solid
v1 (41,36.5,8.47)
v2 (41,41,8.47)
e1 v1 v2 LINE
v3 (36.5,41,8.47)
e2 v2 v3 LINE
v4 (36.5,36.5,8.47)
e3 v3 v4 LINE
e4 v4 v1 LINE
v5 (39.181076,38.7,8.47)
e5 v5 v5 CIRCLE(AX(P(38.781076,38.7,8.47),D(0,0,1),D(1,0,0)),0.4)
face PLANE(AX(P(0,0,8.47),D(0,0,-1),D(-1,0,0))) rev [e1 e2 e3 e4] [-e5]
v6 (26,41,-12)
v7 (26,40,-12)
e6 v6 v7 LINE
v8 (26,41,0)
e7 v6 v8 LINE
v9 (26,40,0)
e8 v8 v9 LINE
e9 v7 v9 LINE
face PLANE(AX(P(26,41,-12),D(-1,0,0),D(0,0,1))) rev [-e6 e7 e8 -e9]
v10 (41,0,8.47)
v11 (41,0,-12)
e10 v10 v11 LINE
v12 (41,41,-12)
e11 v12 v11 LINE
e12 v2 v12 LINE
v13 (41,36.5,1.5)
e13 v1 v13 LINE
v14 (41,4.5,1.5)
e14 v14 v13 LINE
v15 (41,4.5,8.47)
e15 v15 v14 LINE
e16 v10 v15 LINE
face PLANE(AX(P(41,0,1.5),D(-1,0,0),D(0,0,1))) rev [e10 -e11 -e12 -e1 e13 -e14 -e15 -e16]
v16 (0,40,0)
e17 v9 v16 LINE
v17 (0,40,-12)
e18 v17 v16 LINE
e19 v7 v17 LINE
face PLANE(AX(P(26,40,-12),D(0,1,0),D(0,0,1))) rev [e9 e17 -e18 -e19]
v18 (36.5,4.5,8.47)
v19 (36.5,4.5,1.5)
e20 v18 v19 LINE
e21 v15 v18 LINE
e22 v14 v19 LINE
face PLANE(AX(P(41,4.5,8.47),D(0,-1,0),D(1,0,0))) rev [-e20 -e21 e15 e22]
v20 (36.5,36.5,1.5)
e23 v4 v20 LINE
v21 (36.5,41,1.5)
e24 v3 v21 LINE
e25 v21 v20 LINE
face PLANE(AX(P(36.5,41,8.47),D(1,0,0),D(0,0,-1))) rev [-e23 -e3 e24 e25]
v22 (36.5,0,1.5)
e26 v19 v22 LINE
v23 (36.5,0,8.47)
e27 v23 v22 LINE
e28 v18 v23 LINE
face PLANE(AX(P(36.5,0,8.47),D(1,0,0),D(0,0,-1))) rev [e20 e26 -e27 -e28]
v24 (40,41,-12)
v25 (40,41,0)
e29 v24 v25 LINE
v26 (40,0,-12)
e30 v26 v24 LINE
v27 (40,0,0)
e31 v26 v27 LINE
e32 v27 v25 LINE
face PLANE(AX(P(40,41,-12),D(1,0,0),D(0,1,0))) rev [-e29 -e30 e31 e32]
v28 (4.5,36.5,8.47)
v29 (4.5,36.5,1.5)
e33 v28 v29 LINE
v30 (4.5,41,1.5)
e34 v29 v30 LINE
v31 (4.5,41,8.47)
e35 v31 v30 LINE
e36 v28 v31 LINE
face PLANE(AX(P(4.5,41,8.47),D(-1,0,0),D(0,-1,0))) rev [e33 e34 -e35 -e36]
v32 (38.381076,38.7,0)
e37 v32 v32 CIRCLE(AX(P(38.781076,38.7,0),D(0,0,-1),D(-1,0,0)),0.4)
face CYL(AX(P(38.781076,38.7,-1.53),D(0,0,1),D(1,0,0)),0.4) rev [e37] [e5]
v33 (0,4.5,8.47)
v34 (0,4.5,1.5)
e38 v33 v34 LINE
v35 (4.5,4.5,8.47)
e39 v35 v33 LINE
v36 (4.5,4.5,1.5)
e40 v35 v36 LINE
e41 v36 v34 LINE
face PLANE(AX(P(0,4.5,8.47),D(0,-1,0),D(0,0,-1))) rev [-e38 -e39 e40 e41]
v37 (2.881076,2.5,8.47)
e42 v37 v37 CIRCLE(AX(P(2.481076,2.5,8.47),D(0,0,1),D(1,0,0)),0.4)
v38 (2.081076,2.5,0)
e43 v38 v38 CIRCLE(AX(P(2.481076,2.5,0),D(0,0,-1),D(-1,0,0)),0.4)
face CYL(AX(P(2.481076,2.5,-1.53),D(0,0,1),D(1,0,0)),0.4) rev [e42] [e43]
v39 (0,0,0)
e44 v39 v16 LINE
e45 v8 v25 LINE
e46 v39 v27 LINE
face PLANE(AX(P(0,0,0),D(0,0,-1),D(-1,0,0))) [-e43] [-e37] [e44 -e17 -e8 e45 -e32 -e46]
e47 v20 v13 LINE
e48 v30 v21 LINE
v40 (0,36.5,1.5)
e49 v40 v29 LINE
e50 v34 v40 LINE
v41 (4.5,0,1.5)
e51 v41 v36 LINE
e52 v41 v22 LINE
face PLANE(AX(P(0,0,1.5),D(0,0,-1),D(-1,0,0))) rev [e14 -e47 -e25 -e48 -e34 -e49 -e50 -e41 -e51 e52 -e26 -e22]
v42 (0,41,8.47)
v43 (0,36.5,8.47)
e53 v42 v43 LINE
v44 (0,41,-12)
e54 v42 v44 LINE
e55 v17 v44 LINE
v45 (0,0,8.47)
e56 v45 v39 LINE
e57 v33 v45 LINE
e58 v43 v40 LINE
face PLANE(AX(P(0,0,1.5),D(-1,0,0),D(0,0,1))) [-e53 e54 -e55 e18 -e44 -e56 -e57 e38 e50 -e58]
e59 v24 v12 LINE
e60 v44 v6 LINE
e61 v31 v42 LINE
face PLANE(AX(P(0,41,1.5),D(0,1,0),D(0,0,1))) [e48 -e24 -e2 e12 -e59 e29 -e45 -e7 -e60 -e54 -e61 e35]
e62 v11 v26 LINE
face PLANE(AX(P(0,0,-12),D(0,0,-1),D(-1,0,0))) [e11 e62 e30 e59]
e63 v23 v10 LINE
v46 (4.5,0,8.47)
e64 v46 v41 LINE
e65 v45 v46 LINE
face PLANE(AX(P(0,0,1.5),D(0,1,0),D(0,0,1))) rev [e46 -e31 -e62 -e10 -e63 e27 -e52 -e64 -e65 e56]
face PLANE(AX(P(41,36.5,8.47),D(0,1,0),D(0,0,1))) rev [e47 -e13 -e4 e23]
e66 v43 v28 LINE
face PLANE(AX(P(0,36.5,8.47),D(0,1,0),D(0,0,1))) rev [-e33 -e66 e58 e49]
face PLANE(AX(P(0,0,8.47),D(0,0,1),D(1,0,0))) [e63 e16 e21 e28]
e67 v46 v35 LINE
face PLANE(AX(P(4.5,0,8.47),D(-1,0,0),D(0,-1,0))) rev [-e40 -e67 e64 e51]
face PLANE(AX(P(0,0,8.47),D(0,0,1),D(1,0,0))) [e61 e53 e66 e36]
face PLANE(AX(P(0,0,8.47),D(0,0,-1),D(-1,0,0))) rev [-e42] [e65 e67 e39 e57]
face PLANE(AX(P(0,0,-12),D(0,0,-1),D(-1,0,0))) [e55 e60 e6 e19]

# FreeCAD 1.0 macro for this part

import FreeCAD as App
import Part
import Sketcher

doc = App.newDocument("Part")
body = doc.addObject("PartDesign::Body", "Body")

sketch1 = body.newObject("Sketcher::SketchObject", "Sketch")
sketch1.AttachmentSupport = (doc.getObject("XY_Plane"), [""])
sketch1.MapMode = "FlatFace"
sketch1.addGeometry(Part.LineSegment(App.Vector(0, 41, 0), App.Vector(0, 0, 0)), False)
sketch1.addGeometry(Part.LineSegment(App.Vector(0, 0, 0), App.Vector(41, 0, 0)), False)
sketch1.addGeometry(Part.LineSegment(App.Vector(41, 0, 0), App.Vector(41, 41, 0)), False)
sketch1.addGeometry(Part.LineSegment(App.Vector(41, 41, 0), App.Vector(0, 41, 0)), False)
sketch1.addConstraint(Sketcher.Constraint("Coincident", 0, 2, 1, 1))
sketch1.addConstraint(Sketcher.Constraint("Coincident", 1, 2, 2, 1))
sketch1.addConstraint(Sketcher.Constraint("Coincident", 2, 2, 3, 1))
sketch1.addConstraint(Sketcher.Constraint("Coincident", 3, 2, 0, 1))
sketch1.addConstraint(Sketcher.Constraint("Vertical", 0))
sketch1.addConstraint(Sketcher.Constraint("Horizontal", 1))
sketch1.addConstraint(Sketcher.Constraint("Vertical", 2))
sketch1.addConstraint(Sketcher.Constraint("Horizontal", 3))
sketch1.addConstraint(Sketcher.Constraint("Coincident", 0, 2, -1, 1))
sketch1.addConstraint(Sketcher.Constraint("Equal", 3, 0))
sketch1.addConstraint(Sketcher.Constraint("DistanceX", 1, 1, 1, 2, 41.0))
pad1 = body.newObject("PartDesign::Pad", "Pad")
pad1.Profile = sketch1
pad1.Length = 1.5

sketch2 = body.newObject("Sketcher::SketchObject", "Sketch001")
sketch2.AttachmentSupport = (doc.getObject("XY_Plane"), [""])
sketch2.MapMode = "FlatFace"
sketch2.AttachmentOffset = App.Placement(App.Vector(0, 0, 1.5), App.Rotation())
sketch2.addGeometry(Part.LineSegment(App.Vector(0, 4.5, 0), App.Vector(0, 0, 0)), False)
sketch2.addGeometry(Part.LineSegment(App.Vector(0, 0, 0), App.Vector(4.5, 0, 0)), False)
sketch2.addGeometry(Part.LineSegment(App.Vector(4.5, 0, 0), App.Vector(4.5, 4.5, 0)), False)
sketch2.addGeometry(Part.LineSegment(App.Vector(4.5, 4.5, 0), App.Vector(0, 4.5, 0)), False)
sketch2.addConstraint(Sketcher.Constraint("Coincident", 0, 2, 1, 1))
sketch2.addConstraint(Sketcher.Constraint("Coincident", 1, 2, 2, 1))
sketch2.addConstraint(Sketcher.Constraint("Coincident", 2, 2, 3, 1))
sketch2.addConstraint(Sketcher.Constraint("Coincident", 3, 2, 0, 1))
sketch2.addConstraint(Sketcher.Constraint("Vertical", 0))
sketch2.addConstraint(Sketcher.Constraint("Horizontal", 1))
sketch2.addConstraint(Sketcher.Constraint("Vertical", 2))
sketch2.addConstraint(Sketcher.Constraint("Horizontal", 3))
sketch2.addConstraint(Sketcher.Constraint("Coincident", 0, 2, -1, 1))
sketch2.addConstraint(Sketcher.Constraint("Equal", 3, 0))
sketch2.addConstraint(Sketcher.Constraint("DistanceX", 1, 1, 1, 2, 4.5))
pad2 = body.newObject("PartDesign::Pad", "Pad001")
pad2.Profile = sketch2
pad2.Length = 6.97

sketch3 = body.newObject("Sketcher::SketchObject", "Sketch002")
sketch3.AttachmentSupport = (doc.getObject("XY_Plane"), [""])
sketch3.MapMode = "FlatFace"
sketch3.AttachmentOffset = App.Placement(App.Vector(0, 0, 1.5), App.Rotation())
sketch3.addGeometry(Part.LineSegment(App.Vector(36.5, 4.5, 0), App.Vector(36.5, 0, 0)), False)
sketch3.addGeometry(Part.LineSegment(App.Vector(36.5, 0, 0), App.Vector(41, 0, 0)), False)
sketch3.addGeometry(Part.LineSegment(App.Vector(41, 0, 0), App.Vector(41, 4.5, 0)), False)
sketch3.addGeometry(Part.LineSegment(App.Vector(41, 4.5, 0), App.Vector(36.5, 4.5, 0)), False)
sketch3.addConstraint(Sketcher.Constraint("Coincident", 0, 2, 1, 1))
sketch3.addConstraint(Sketcher.Constraint("Coincident", 1, 2, 2, 1))
sketch3.addConstraint(Sketcher.Constraint("Coincident", 2, 2, 3, 1))
sketch3.addConstraint(Sketcher.Constraint("Coincident", 3, 2, 0, 1))
sketch3.addConstraint(Sketcher.Constraint("Vertical", 0))
sketch3.addConstraint(Sketcher.Constraint("Horizontal", 1))
sketch3.addConstraint(Sketcher.Constraint("Vertical", 2))
sketch3.addConstraint(Sketcher.Constraint("Horizontal", 3))
sketch3.addConstraint(Sketcher.Constraint("PointOnObject", 0, 2, -1))
sketch3.addConstraint(Sketcher.Constraint("Equal", 3, 0))
sketch3.addConstraint(Sketcher.Constraint("DistanceX", 1, 1, 1, 2, 4.5))
sketch3.addConstraint(Sketcher.Constraint("DistanceX", -1, 1, 1, 2, 41.0))
pad3 = body.newObject("PartDesign::Pad", "Pad002")
pad3.Profile = sketch3
pad3.Length = 6.97

sketch4 = body.newObject("Sketcher::SketchObject", "Sketch003")
sketch4.AttachmentSupport = (doc.getObject("XY_Plane"), [""])
sketch4.MapMode = "FlatFace"
sketch4.AttachmentOffset = App.Placement(App.Vector(0, 0, 1.5), App.Rotation())
sketch4.addGeometry(Part.LineSegment(App.Vector(0, 41, 0), App.Vector(0, 36.5, 0)), False)
sketch4.addGeometry(Part.LineSegment(App.Vector(0, 36.5, 0), App.Vector(4.5, 36.5, 0)), False)
sketch4.addGeometry(Part.LineSegment(App.Vector(4.5, 36.5, 0), App.Vector(4.5, 41, 0)), False)
sketch4.addGeometry(Part.LineSegment(App.Vector(4.5, 41, 0), App.Vector(0, 41, 0)), False)
sketch4.addConstraint(Sketcher.Constraint("Coincident", 0, 2, 1, 1))
sketch4.addConstraint(Sketcher.Constraint("Coincident", 1, 2, 2, 1))
sketch4.addConstraint(Sketcher.Constraint("Coincident", 2, 2, 3, 1))
sketch4.addConstraint(Sketcher.Constraint("Coincident", 3, 2, 0, 1))
sketch4.addConstraint(Sketcher.Constraint("Vertical", 0))
sketch4.addConstraint(Sketcher.Constraint("Horizontal", 1))
sketch4.addConstraint(Sketcher.Constraint("Vertical", 2))
sketch4.addConstraint(Sketcher.Constraint("Horizontal", 3))
sketch4.addConstraint(Sketcher.Constraint("PointOnObject", 0, 2, -2))
sketch4.addConstraint(Sketcher.Constraint("Equal", 3, 0))
sketch4.addConstraint(Sketcher.Constraint("DistanceX", 1, 1, 1, 2, 4.5))
sketch4.addConstraint(Sketcher.Constraint("DistanceY", -1, 1, 2, 2, 41.0))
pad4 = body.newObject("PartDesign::Pad", "Pad003")
pad4.Profile = sketch4
pad4.Length = 6.97

sketch5 = body.newObject("Sketcher::SketchObject", "Sketch004")
sketch5.AttachmentSupport = (doc.getObject("XY_Plane"), [""])
sketch5.MapMode = "FlatFace"
sketch5.AttachmentOffset = App.Placement(App.Vector(0, 0, 1.5), App.Rotation())
sketch5.addGeometry(Part.LineSegment(App.Vector(36.5, 41, 0), App.Vector(36.5, 36.5, 0)), False)
sketch5.addGeometry(Part.LineSegment(App.Vector(36.5, 36.5, 0), App.Vector(41, 36.5, 0)), False)
sketch5.addGeometry(Part.LineSegment(App.Vector(41, 36.5, 0), App.Vector(41, 41, 0)), False)
sketch5.addGeometry(Part.LineSegment(App.Vector(41, 41, 0), App.Vector(36.5, 41, 0)), False)
sketch5.addConstraint(Sketcher.Constraint("Coincident", 0, 2, 1, 1))
sketch5.addConstraint(Sketcher.Constraint("Coincident", 1, 2, 2, 1))
sketch5.addConstraint(Sketcher.Constraint("Coincident", 2, 2, 3, 1))
sketch5.addConstraint(Sketcher.Constraint("Coincident", 3, 2, 0, 1))
sketch5.addConstraint(Sketcher.Constraint("Vertical", 0))
sketch5.addConstraint(Sketcher.Constraint("Horizontal", 1))
sketch5.addConstraint(Sketcher.Constraint("Vertical", 2))
sketch5.addConstraint(Sketcher.Constraint("Horizontal", 3))
sketch5.addConstraint(Sketcher.Constraint("Equal", 3, 0))
sketch5.addConstraint(Sketcher.Constraint("DistanceX", 1, 1, 1, 2, 4.5))
sketch5.addConstraint(Sketcher.Constraint("DistanceX", -1, 1, 1, 2, 41.0))
sketch5.addConstraint(Sketcher.Constraint("DistanceY", -1, 1, 2, 2, 41.0))
pad5 = body.newObject("PartDesign::Pad", "Pad004")
pad5.Profile = sketch5
pad5.Length = 6.97

sketch6 = body.newObject("Sketcher::SketchObject", "Sketch005")
sketch6.AttachmentSupport = (doc.getObject("XY_Plane"), [""])
sketch6.MapMode = "FlatFace"
sketch6.addGeometry(Part.LineSegment(App.Vector(41, 41, 0), App.Vector(41, 0, 0)), False)
sketch6.addGeometry(Part.LineSegment(App.Vector(41, 0, 0), App.Vector(40, 0, 0)), False)
sketch6.addGeometry(Part.LineSegment(App.Vector(40, 0, 0), App.Vector(40, 41, 0)), False)
sketch6.addGeometry(Part.LineSegment(App.Vector(40, 41, 0), App.Vector(41, 41, 0)), False)
sketch6.addConstraint(Sketcher.Constraint("Coincident", 0, 2, 1, 1))
sketch6.addConstraint(Sketcher.Constraint("Coincident", 1, 2, 2, 1))
sketch6.addConstraint(Sketcher.Constraint("Coincident", 2, 2, 3, 1))
sketch6.addConstraint(Sketcher.Constraint("Coincident", 3, 2, 0, 1))
sketch6.addConstraint(Sketcher.Constraint("Vertical", 0))
sketch6.addConstraint(Sketcher.Constraint("Horizontal", 1))
sketch6.addConstraint(Sketcher.Constraint("Vertical", 2))
sketch6.addConstraint(Sketcher.Constraint("Horizontal", 3))
sketch6.addConstraint(Sketcher.Constraint("PointOnObject", 0, 2, -1))
sketch6.addConstraint(Sketcher.Constraint("DistanceX", 1, 2, 1, 1, 1.0))
sketch6.addConstraint(Sketcher.Constraint("DistanceY", 0, 2, 0, 1, 41.0))
sketch6.addConstraint(Sketcher.Constraint("DistanceX", -1, 1, 0, 2, 41.0))
pad6 = body.newObject("PartDesign::Pad", "Pad005")
pad6.Profile = sketch6
pad6.Length = 12
pad6.Reversed = True

sketch7 = body.newObject("Sketcher::SketchObject", "Sketch006")
sketch7.AttachmentSupport = (doc.getObject("XY_Plane"), [""])
sketch7.MapMode = "FlatFace"
sketch7.addGeometry(Part.LineSegment(App.Vector(26, 41, 0), App.Vector(26, 40, 0)), False)
sketch7.addGeometry(Part.LineSegment(App.Vector(26, 40, 0), App.Vector(0, 40, 0)), False)
sketch7.addGeometry(Part.LineSegment(App.Vector(0, 40, 0), App.Vector(0, 41, 0)), False)
sketch7.addGeometry(Part.LineSegment(App.Vector(0, 41, 0), App.Vector(26, 41, 0)), False)
sketch7.addConstraint(Sketcher.Constraint("Coincident", 0, 2, 1, 1))
sketch7.addConstraint(Sketcher.Constraint("Coincident", 1, 2, 2, 1))
sketch7.addConstraint(Sketcher.Constraint("Coincident", 2, 2, 3, 1))
sketch7.addConstraint(Sketcher.Constraint("Coincident", 3, 2, 0, 1))
sketch7.addConstraint(Sketcher.Constraint("Vertical", 0))
sketch7.addConstraint(Sketcher.Constraint("Horizontal", 1))
sketch7.addConstraint(Sketcher.Constraint("Vertical", 2))
sketch7.addConstraint(Sketcher.Constraint("Horizontal", 3))
sketch7.addConstraint(Sketcher.Constraint("PointOnObject", 1, 2, -2))
sketch7.addConstraint(Sketcher.Constraint("DistanceX", 1, 2, 1, 1, 26.0))
sketch7.addConstraint(Sketcher.Constraint("DistanceY", 0, 2, 0, 1, 1.0))
sketch7.addConstraint(Sketcher.Constraint("DistanceY", -1, 1, 0, 2, 40.0))
pad7 = body.newObject("PartDesign::Pad", "Pad006")
pad7.Profile = sketch7
pad7.Length = 12
pad7.Reversed = True

sketch8 = body.newObject("Sketcher::SketchObject", "Sketch007")
sketch8.AttachmentSupport = (doc.getObject("XY_Plane"), [""])
sketch8.MapMode = "FlatFace"
sketch8.AttachmentOffset = App.Placement(App.Vector(0, 0, 8.47), App.Rotation())
sketch8.addGeometry(Part.Circle(App.Vector(38.78, 38.7, 0), App.Vector(0, 0, 1), 0.4), False)
sketch8.addConstraint(Sketcher.Constraint("Diameter", 0, 0.8))
sketch8.addConstraint(Sketcher.Constraint("DistanceY", -1, 1, 0, 3, 38.7))
sketch8.addConstraint(Sketcher.Constraint("DistanceX", -1, 1, 0, 3, 38.781076))
pocket1 = body.newObject("PartDesign::Pocket", "Pocket")
pocket1.Profile = sketch8
pocket1.Length = 10

sketch9 = body.newObject("Sketcher::SketchObject", "Sketch008")
sketch9.AttachmentSupport = (doc.getObject("XY_Plane"), [""])
sketch9.MapMode = "FlatFace"
sketch9.AttachmentOffset = App.Placement(App.Vector(0, 0, 8.47), App.Rotation())
sketch9.addGeometry(Part.Circle(App.Vector(2.48, 2.5, 0), App.Vector(0, 0, 1), 0.4), False)
sketch9.addConstraint(Sketcher.Constraint("Diameter", 0, 0.8))
sketch9.addConstraint(Sketcher.Constraint("DistanceY", -1, 1, 0, 3, 2.5))
sketch9.addConstraint(Sketcher.Constraint("DistanceX", -1, 1, 0, 3, 2.481076))
pocket2 = body.newObject("PartDesign::Pocket", "Pocket001")
pocket2.Profile = sketch9
pocket2.Length = 10

doc.recompute()
